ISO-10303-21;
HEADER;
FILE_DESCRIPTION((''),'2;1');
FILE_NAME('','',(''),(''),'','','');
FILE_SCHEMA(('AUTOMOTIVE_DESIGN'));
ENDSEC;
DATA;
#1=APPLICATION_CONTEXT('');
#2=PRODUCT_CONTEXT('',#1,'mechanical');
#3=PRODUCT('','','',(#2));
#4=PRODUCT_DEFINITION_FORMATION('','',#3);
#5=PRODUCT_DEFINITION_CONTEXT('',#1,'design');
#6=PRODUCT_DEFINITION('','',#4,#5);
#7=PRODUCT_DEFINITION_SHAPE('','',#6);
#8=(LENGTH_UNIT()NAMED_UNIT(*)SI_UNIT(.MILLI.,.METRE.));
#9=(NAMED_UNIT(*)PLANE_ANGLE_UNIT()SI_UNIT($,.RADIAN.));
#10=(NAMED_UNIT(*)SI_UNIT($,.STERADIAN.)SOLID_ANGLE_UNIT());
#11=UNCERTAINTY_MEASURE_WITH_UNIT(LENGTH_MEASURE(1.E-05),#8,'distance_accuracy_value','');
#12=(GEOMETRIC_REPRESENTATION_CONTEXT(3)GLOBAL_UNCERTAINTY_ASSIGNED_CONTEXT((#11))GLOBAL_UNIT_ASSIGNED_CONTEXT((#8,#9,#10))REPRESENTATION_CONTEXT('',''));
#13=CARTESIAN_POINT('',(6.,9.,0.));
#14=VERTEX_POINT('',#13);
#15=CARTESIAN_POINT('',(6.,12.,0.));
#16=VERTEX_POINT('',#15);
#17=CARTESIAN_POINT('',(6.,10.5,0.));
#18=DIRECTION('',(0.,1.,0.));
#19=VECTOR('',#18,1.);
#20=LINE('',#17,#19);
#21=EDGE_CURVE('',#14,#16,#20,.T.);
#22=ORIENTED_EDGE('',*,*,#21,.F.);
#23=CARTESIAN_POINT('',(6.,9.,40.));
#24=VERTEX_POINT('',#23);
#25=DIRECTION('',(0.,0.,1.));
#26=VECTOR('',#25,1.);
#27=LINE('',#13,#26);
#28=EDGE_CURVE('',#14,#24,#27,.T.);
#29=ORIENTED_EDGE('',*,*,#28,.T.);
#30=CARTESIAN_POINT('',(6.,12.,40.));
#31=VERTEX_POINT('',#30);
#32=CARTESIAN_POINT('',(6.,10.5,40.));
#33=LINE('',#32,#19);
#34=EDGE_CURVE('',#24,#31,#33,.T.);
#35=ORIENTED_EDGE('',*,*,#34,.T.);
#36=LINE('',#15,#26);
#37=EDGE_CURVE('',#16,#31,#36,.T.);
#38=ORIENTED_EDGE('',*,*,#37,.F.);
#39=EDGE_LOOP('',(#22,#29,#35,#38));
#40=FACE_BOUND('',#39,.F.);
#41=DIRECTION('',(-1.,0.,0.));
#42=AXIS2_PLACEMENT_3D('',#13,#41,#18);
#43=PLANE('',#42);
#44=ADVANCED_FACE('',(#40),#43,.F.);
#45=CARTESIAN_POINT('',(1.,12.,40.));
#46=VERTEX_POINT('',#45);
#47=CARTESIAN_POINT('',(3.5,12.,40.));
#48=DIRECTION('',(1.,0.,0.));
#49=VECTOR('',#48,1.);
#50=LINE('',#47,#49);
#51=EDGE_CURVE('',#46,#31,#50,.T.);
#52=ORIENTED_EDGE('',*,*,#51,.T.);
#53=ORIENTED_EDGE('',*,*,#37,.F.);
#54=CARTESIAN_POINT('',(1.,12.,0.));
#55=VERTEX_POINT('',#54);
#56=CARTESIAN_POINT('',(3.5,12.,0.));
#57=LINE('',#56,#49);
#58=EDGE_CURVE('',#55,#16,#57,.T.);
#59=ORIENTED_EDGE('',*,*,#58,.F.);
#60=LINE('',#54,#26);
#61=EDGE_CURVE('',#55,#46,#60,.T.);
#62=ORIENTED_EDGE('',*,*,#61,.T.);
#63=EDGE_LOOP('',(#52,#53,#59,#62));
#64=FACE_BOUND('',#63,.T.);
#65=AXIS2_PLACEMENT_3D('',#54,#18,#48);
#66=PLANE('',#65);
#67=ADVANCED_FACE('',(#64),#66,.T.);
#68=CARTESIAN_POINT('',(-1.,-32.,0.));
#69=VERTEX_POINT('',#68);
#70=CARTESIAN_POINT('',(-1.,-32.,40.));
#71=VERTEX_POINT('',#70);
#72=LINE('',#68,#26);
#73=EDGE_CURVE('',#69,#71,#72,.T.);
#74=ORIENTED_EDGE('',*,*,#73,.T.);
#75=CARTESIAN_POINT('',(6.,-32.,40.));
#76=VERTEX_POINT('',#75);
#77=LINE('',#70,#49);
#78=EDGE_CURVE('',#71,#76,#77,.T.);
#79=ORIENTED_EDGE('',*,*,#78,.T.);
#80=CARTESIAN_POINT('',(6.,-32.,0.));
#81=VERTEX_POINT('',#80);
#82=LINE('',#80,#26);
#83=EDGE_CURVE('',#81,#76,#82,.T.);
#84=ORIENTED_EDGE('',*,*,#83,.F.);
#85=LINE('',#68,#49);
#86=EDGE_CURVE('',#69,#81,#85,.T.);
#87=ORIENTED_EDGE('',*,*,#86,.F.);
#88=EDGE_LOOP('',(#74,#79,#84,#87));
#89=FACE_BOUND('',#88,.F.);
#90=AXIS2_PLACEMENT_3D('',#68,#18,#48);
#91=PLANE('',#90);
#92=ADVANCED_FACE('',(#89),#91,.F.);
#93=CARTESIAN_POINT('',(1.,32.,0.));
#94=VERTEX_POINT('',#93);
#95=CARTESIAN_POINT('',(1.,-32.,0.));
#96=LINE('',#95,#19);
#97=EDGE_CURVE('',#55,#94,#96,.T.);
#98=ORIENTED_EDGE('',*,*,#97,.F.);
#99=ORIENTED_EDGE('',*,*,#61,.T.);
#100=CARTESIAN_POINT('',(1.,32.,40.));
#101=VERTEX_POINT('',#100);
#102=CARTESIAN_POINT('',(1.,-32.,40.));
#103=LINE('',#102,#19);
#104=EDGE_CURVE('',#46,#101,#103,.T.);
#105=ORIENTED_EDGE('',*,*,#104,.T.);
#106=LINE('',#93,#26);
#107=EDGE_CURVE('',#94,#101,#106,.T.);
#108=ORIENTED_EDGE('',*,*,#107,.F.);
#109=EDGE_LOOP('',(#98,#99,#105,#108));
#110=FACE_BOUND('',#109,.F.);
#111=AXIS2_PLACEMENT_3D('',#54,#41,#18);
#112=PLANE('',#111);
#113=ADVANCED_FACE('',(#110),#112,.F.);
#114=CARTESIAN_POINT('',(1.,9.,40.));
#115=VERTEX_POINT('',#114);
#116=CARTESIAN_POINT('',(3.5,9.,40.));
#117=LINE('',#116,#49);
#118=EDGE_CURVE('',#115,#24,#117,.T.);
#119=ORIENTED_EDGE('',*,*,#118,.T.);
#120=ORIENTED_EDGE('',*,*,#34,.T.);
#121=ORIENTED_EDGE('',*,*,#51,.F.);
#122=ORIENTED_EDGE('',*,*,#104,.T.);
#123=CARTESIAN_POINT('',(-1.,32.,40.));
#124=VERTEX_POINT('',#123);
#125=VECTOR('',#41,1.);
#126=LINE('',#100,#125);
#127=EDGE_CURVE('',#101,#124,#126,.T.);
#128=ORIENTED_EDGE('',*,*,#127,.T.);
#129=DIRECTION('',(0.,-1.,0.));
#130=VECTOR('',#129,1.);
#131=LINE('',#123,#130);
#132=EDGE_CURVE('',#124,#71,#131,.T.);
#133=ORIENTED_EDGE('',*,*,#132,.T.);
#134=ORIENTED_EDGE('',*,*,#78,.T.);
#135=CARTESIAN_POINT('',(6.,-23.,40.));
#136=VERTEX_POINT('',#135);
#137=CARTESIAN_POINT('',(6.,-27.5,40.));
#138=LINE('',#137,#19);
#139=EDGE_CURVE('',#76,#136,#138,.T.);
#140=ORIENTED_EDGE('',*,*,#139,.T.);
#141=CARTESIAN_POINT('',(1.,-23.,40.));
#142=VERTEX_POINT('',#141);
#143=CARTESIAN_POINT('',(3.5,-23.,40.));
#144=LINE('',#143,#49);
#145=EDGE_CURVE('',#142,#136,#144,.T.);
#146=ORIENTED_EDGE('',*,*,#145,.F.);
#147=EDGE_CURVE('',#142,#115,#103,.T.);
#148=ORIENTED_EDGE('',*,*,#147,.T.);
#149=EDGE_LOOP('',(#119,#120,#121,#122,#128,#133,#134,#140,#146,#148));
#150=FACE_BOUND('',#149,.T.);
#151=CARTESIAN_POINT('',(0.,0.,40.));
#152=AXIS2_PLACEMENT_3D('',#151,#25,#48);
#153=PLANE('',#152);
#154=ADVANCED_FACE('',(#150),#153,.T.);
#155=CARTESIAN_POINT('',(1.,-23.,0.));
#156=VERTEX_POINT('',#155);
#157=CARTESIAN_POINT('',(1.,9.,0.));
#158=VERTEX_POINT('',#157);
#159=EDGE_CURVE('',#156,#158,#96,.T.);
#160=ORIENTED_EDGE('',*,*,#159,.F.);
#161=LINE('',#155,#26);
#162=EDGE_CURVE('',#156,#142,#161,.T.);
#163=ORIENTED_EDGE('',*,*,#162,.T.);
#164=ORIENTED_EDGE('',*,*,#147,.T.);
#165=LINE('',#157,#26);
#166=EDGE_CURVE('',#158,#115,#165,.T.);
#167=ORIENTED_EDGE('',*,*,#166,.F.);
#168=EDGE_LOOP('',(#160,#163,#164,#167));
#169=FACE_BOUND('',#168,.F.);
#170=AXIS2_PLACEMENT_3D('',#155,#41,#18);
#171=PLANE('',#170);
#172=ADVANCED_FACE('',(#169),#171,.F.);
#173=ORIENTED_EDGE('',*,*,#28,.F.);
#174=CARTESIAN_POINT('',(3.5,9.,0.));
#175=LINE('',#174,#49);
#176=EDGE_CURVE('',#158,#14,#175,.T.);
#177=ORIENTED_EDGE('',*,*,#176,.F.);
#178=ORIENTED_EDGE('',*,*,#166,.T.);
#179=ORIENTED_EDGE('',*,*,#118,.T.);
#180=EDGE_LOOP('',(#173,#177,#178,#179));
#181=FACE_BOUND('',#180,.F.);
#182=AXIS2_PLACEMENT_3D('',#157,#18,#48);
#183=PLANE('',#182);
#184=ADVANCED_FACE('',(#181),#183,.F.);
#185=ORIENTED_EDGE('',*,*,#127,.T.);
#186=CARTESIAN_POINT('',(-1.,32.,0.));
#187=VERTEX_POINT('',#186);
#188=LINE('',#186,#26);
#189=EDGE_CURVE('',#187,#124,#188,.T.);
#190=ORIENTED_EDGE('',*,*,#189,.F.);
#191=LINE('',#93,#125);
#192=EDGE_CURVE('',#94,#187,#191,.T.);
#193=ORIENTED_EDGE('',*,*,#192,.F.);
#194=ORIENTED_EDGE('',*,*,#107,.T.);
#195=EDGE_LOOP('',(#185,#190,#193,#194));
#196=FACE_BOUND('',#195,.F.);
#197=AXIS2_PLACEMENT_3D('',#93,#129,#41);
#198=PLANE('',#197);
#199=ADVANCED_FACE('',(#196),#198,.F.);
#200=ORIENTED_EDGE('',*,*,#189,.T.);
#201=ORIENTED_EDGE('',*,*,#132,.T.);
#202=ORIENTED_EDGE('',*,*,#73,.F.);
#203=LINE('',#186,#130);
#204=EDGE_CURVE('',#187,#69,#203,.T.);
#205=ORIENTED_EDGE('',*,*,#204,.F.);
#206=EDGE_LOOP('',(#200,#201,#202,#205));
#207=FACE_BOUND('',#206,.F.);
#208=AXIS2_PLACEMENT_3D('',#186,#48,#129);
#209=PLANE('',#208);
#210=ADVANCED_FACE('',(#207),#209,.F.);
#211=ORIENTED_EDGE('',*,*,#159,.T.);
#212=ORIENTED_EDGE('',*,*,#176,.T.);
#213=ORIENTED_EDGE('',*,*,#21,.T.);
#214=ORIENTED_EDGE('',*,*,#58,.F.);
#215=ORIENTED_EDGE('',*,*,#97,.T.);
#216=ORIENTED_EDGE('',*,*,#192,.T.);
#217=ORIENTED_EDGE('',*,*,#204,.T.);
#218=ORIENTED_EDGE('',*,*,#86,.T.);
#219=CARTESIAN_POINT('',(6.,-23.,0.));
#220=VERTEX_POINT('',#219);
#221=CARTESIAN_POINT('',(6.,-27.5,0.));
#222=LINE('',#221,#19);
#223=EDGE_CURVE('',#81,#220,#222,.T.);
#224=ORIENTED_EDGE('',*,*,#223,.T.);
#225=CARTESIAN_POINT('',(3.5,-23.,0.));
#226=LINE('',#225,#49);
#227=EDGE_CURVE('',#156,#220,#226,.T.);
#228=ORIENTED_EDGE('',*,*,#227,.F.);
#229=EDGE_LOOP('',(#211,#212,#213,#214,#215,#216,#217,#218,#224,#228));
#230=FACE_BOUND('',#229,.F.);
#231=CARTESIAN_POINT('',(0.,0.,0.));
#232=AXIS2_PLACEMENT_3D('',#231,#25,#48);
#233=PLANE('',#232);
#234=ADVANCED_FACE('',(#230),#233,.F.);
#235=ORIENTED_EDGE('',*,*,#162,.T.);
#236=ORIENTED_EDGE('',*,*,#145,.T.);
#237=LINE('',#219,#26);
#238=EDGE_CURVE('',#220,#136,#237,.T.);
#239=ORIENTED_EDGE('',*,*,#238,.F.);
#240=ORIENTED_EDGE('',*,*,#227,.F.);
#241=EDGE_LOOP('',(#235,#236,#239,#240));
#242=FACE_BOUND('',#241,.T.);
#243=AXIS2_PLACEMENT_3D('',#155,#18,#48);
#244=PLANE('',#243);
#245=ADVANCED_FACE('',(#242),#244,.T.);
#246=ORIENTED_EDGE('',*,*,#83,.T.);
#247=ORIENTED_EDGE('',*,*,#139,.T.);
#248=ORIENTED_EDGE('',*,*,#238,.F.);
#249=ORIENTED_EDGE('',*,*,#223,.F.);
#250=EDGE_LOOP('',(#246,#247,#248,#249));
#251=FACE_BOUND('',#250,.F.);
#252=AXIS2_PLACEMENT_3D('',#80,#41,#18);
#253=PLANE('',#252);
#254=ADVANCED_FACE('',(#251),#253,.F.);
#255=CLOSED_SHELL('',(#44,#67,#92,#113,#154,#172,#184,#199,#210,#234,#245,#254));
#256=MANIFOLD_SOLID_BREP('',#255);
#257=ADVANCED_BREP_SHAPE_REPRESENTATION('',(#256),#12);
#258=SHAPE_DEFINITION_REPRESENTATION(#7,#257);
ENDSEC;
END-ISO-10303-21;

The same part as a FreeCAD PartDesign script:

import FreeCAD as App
import Part
import Sketcher

doc = App.newDocument("Part")
body = doc.addObject("PartDesign::Body", "Body")

# Sketch on XY plane
sketch1 = doc.addObject("Sketcher::SketchObject", "Sketch")
body.addObject(sketch1)
sketch1.AttachmentSupport = (doc.XY_Plane, [""])
sketch1.MapMode = "FlatFace"
sketch1.addGeometry([
    Part.LineSegment(App.Vector(1, 32, 0), App.Vector(-1, 32, 0)),  # 0
    Part.LineSegment(App.Vector(-1, 32, 0), App.Vector(-1, -32, 0)),  # 1
    Part.LineSegment(App.Vector(-1, -32, 0), App.Vector(6, -32, 0)),  # 2
    Part.LineSegment(App.Vector(6, -32, 0), App.Vector(6, -23, 0)),  # 3
    Part.LineSegment(App.Vector(6, -23, 0), App.Vector(1, -23, 0)),  # 4
    Part.LineSegment(App.Vector(1, -23, 0), App.Vector(1, 9, 0)),  # 5
    Part.LineSegment(App.Vector(1, 9, 0), App.Vector(6, 9, 0)),  # 6
    Part.LineSegment(App.Vector(6, 9, 0), App.Vector(6, 12, 0)),  # 7
    Part.LineSegment(App.Vector(6, 12, 0), App.Vector(1, 12, 0)),  # 8
    Part.LineSegment(App.Vector(1, 12, 0), App.Vector(1, 32, 0)),  # 9
], False)
sketch1.addConstraint([
    Sketcher.Constraint("Coincident", 0, 2, 1, 1),
    Sketcher.Constraint("Coincident", 1, 2, 2, 1),
    Sketcher.Constraint("Coincident", 2, 2, 3, 1),
    Sketcher.Constraint("Coincident", 3, 2, 4, 1),
    Sketcher.Constraint("Coincident", 4, 2, 5, 1),
    Sketcher.Constraint("Coincident", 5, 2, 6, 1),
    Sketcher.Constraint("Coincident", 6, 2, 7, 1),
    Sketcher.Constraint("Coincident", 7, 2, 8, 1),
    Sketcher.Constraint("Coincident", 8, 2, 9, 1),
    Sketcher.Constraint("Coincident", 9, 2, 0, 1),
    Sketcher.Constraint("Horizontal", 0),
    Sketcher.Constraint("Vertical", 1),
    Sketcher.Constraint("Horizontal", 2),
    Sketcher.Constraint("Vertical", 3),
    Sketcher.Constraint("Horizontal", 4),
    Sketcher.Constraint("Vertical", 5),
    Sketcher.Constraint("Horizontal", 6),
    Sketcher.Constraint("Vertical", 7),
    Sketcher.Constraint("Horizontal", 8),
    Sketcher.Constraint("Vertical", 9),
    Sketcher.Constraint("Symmetric", 1, 2, 9, 2, -1, 1),
    Sketcher.Constraint("Vertical", 3, 2, 6, 2),
    Sketcher.Constraint("Vertical", 5, 2, 8, 2),
    Sketcher.Constraint("DistanceX", 0, 2, 0, 1, 2.0),
    Sketcher.Constraint("DistanceX", 2, 1, 2, 2, 7.0),
    Sketcher.Constraint("DistanceY", 1, 2, 1, 1, 64.0),
    Sketcher.Constraint("DistanceY", 3, 1, 3, 2, 9.0),
    Sketcher.Constraint("DistanceY", 5, 1, 5, 2, 32.0),
    Sketcher.Constraint("DistanceY", 7, 1, 7, 2, 3.0),
])
pad1 = doc.addObject("PartDesign::Pad", "Pad")
body.addObject(pad1)
pad1.Profile = sketch1
pad1.Length = 40

doc.recompute()
